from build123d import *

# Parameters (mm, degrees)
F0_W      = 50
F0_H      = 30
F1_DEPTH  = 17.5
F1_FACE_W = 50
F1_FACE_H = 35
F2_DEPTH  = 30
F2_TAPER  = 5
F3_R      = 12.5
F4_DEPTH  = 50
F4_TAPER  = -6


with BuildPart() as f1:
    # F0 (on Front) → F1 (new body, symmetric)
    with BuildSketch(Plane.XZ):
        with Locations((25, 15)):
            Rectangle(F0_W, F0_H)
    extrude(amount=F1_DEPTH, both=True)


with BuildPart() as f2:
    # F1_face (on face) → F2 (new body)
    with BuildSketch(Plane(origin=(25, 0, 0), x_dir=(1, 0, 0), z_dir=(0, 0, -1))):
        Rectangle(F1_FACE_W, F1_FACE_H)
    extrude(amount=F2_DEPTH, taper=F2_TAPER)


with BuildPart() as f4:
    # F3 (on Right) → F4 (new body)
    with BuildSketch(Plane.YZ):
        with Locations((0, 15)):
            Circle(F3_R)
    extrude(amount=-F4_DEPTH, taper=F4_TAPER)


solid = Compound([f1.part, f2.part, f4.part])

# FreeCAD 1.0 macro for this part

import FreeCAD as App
import Part
import Sketcher

V = App.Vector

doc = App.newDocument("Part")
params = doc.addObject("Spreadsheet::Sheet", "Params")
for row, (alias, value) in enumerate([
    ("sketch1_width", "50 mm"),
    ("sketch1_height", "30 mm"),
    ("pad1_length", "35 mm"),
    ("sketch2_width", "50 mm"),
    ("sketch2_height", "35 mm"),
    ("pad2_length", "30 mm"),
    ("pad2_taper", "-5 deg"),
    ("sketch3_diameter", "25 mm"),
    ("pad3_length", "50 mm"),
    ("pad3_taper", "6 deg"),
], start=1):
    params.set(f"A{row}", alias)
    params.set(f"B{row}", "=" + value)
    params.setAlias(f"B{row}", alias)

body = doc.addObject("PartDesign::Body", "Body")

sketch1 = body.newObject("Sketcher::SketchObject", "Sketch")
sketch1.AttachmentSupport = (doc.getObject("XZ_Plane"), [""])
sketch1.MapMode = "FlatFace"
sketch1.addGeometry(Part.LineSegment(V(0, 30, 0), V(0, 0, 0)), False)
sketch1.addGeometry(Part.LineSegment(V(0, 0, 0), V(50, 0, 0)), False)
sketch1.addGeometry(Part.LineSegment(V(50, 0, 0), V(50, 30, 0)), False)
sketch1.addGeometry(Part.LineSegment(V(50, 30, 0), V(0, 30, 0)), False)
sketch1.addConstraint(Sketcher.Constraint("Coincident", 0, 2, 1, 1))
sketch1.addConstraint(Sketcher.Constraint("Coincident", 1, 2, 2, 1))
sketch1.addConstraint(Sketcher.Constraint("Coincident", 2, 2, 3, 1))
sketch1.addConstraint(Sketcher.Constraint("Coincident", 3, 2, 0, 1))
sketch1.addConstraint(Sketcher.Constraint("Vertical", 0))
sketch1.addConstraint(Sketcher.Constraint("Horizontal", 1))
sketch1.addConstraint(Sketcher.Constraint("Vertical", 2))
sketch1.addConstraint(Sketcher.Constraint("Horizontal", 3))
sketch1.addConstraint(Sketcher.Constraint("Coincident", 0, 2, -1, 1))
sketch1.addConstraint(Sketcher.Constraint("DistanceX", 1, 1, 1, 2, 50.0))
sketch1.addConstraint(Sketcher.Constraint("DistanceY", 0, 2, 0, 1, 30.0))
sketch1.setExpression("Constraints[9]", "Params.sketch1_width")
sketch1.setExpression("Constraints[10]", "Params.sketch1_height")
pad1 = body.newObject("PartDesign::Pad", "Pad")
pad1.Profile = sketch1
pad1.setExpression("Length", "Params.pad1_length")
pad1.Midplane = True
body2 = doc.addObject("PartDesign::Body", "Body001")

sketch2 = body2.newObject("Sketcher::SketchObject", "Sketch001")
sketch2.AttachmentSupport = (doc.getObject("XY_Plane001"), [""])
sketch2.MapMode = "FlatFace"
sketch2.addGeometry(Part.LineSegment(V(0, -18, 0), V(0, 18, 0)), False)
sketch2.addGeometry(Part.LineSegment(V(0, 18, 0), V(50, 18, 0)), False)
sketch2.addGeometry(Part.LineSegment(V(50, 18, 0), V(50, -18, 0)), False)
sketch2.addGeometry(Part.LineSegment(V(50, -18, 0), V(0, -18, 0)), False)
sketch2.addConstraint(Sketcher.Constraint("Coincident", 0, 2, 1, 1))
sketch2.addConstraint(Sketcher.Constraint("Coincident", 1, 2, 2, 1))
sketch2.addConstraint(Sketcher.Constraint("Coincident", 2, 2, 3, 1))
sketch2.addConstraint(Sketcher.Constraint("Coincident", 3, 2, 0, 1))
sketch2.addConstraint(Sketcher.Constraint("Vertical", 0))
sketch2.addConstraint(Sketcher.Constraint("Horizontal", 1))
sketch2.addConstraint(Sketcher.Constraint("Vertical", 2))
sketch2.addConstraint(Sketcher.Constraint("Horizontal", 3))
sketch2.addConstraint(Sketcher.Constraint("Symmetric", 0, 2, 3, 2, -1, 1))
sketch2.addConstraint(Sketcher.Constraint("DistanceX", 1, 1, 1, 2, 50.0))
sketch2.addConstraint(Sketcher.Constraint("DistanceY", 0, 1, 0, 2, 35.0))
sketch2.setExpression("Constraints[9]", "Params.sketch2_width")
sketch2.setExpression("Constraints[10]", "Params.sketch2_height")
pad2 = body2.newObject("PartDesign::Pad", "Pad001")
pad2.Profile = sketch2
pad2.setExpression("Length", "Params.pad2_length")
pad2.Reversed = True
pad2.setExpression("TaperAngle", "Params.pad2_taper")
body3 = doc.addObject("PartDesign::Body", "Body002")

sketch3 = body3.newObject("Sketcher::SketchObject", "Sketch002")
sketch3.AttachmentSupport = (doc.getObject("YZ_Plane002"), [""])
sketch3.MapMode = "FlatFace"
sketch3.addGeometry(Part.Circle(V(0, 15, 0), V(0, 0, 1), 12), False)
sketch3.addConstraint(Sketcher.Constraint("PointOnObject", 0, 3, -2))
sketch3.addConstraint(Sketcher.Constraint("Diameter", 0, 25.0))
sketch3.addConstraint(Sketcher.Constraint("DistanceY", -1, 1, 0, 3, 15.0))
sketch3.setExpression("Constraints[1]", "Params.sketch3_diameter")
pad3 = body3.newObject("PartDesign::Pad", "Pad002")
pad3.Profile = sketch3
pad3.setExpression("Length", "Params.pad3_length")
pad3.Reversed = True
pad3.setExpression("TaperAngle", "Params.pad3_taper")

doc.recompute()
